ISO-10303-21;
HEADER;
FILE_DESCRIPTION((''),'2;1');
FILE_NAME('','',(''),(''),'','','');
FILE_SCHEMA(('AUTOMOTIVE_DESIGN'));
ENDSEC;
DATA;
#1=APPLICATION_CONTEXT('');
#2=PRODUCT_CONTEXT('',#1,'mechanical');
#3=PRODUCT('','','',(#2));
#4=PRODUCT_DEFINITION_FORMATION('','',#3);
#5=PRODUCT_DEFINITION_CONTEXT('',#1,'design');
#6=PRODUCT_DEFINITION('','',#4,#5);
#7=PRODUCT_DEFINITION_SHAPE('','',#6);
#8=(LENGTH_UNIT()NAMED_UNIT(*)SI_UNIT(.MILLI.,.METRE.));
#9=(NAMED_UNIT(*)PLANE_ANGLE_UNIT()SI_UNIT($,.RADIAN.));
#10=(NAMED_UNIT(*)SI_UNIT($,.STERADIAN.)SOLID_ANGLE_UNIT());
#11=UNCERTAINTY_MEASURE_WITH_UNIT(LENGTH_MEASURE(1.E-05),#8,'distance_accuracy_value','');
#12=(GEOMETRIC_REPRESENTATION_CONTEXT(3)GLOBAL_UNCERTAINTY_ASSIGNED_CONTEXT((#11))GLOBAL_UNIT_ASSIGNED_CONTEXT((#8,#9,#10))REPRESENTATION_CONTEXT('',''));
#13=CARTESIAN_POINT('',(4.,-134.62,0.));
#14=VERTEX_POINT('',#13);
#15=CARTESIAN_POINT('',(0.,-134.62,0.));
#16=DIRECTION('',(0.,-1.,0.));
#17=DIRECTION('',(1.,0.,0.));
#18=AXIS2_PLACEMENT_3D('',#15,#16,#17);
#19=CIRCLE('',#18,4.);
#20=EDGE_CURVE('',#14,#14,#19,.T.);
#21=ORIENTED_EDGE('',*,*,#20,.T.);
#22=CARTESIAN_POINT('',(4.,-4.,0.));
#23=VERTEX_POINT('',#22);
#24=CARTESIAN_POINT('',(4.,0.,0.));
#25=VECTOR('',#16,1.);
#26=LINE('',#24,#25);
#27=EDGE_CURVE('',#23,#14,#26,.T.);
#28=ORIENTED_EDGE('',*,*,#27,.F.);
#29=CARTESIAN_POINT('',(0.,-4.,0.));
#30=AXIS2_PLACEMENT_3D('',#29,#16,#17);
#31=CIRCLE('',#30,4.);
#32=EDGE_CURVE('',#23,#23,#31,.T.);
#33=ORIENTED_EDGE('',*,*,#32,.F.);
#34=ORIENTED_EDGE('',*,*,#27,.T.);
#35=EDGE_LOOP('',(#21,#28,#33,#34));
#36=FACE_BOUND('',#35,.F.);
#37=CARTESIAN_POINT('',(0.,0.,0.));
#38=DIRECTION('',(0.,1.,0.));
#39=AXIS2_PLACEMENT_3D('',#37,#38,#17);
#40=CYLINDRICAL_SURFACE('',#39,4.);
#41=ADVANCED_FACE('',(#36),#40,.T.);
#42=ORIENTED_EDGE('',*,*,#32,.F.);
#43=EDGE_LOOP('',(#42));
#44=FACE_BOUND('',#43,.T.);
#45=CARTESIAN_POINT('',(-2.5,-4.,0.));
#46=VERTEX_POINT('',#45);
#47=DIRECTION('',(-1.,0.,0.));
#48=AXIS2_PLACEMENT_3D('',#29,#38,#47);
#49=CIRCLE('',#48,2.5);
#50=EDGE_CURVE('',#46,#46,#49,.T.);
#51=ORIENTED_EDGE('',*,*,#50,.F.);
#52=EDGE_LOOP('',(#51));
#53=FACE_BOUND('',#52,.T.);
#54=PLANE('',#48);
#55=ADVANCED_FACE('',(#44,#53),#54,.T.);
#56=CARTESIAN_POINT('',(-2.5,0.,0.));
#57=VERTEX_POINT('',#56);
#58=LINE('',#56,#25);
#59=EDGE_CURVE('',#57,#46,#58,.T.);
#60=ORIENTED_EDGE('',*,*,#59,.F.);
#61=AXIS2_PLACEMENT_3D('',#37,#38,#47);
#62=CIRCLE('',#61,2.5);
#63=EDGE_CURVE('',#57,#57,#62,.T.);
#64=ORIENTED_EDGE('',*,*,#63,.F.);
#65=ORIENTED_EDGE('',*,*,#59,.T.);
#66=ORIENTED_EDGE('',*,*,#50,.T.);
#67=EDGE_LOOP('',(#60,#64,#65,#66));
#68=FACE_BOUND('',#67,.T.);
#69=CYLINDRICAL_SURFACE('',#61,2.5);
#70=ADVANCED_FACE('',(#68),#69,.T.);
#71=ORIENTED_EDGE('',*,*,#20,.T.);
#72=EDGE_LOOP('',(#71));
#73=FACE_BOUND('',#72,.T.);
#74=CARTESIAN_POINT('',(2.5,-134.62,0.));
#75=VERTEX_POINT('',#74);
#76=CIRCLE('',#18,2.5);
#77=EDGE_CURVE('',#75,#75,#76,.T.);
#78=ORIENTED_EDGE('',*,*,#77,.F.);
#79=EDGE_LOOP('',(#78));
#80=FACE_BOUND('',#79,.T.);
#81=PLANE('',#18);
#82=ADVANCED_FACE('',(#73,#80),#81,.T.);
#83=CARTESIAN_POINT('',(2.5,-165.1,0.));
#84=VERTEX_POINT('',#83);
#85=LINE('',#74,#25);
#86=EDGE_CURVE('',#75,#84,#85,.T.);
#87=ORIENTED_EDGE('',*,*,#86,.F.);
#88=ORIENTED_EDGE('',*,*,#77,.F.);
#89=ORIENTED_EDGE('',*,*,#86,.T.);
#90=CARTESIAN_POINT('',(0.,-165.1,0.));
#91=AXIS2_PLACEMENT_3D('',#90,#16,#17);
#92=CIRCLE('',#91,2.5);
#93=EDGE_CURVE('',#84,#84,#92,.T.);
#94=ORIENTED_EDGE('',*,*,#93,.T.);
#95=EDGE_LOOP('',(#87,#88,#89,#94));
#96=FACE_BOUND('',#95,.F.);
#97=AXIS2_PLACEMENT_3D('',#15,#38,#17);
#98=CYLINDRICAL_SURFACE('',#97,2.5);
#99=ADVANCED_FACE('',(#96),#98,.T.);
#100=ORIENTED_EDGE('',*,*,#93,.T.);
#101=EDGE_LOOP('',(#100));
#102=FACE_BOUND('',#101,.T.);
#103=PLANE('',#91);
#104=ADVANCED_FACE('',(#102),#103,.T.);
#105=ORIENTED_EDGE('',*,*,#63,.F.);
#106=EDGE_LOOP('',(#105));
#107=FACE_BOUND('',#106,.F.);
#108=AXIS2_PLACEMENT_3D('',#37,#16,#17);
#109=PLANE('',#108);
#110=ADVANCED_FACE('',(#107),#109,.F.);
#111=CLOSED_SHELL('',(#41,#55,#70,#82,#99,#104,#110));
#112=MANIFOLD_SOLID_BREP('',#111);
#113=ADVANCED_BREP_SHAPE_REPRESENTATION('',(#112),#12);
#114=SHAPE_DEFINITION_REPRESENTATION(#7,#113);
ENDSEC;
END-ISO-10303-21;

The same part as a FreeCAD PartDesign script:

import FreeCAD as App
import Part
import Sketcher

V = App.Vector
Q = App.Units.Quantity

doc = App.newDocument("Part")
body = doc.addObject("PartDesign::Body", "Body")

# Sketch on XZ plane
sketch1 = body.newObject("Sketcher::SketchObject", "Sketch")
sketch1.AttachmentSupport = (doc.getObject("XZ_Plane"), [""])
sketch1.MapMode = "FlatFace"
sketch1.addGeometry(Part.Circle(V(0, 0, 0), V(0, 0, 1), 4), False)
sketch1.addConstraint(Sketcher.Constraint("Coincident", 0, 3, -1, 1))
sketch1.addConstraint(Sketcher.Constraint("Diameter", 0, Q("8 mm")))
pad1 = body.newObject("PartDesign::Pad", "Pad")
pad1.Profile = sketch1
pad1.Length = 134.62

# Sketch on XZ plane
sketch2 = body.newObject("Sketcher::SketchObject", "Sketch001")
sketch2.AttachmentSupport = (doc.getObject("XZ_Plane"), [""])
sketch2.MapMode = "FlatFace"
sketch2.addGeometry(Part.Circle(V(0, 0, 0), V(0, 0, 1), 4), False)
sketch2.addGeometry(Part.Circle(V(0, 0, 0), V(0, 0, 1), 2.5), False)
sketch2.addConstraint(Sketcher.Constraint("Coincident", 0, 3, -1, 1))
sketch2.addConstraint(Sketcher.Constraint("Coincident", 1, 3, -1, 1))
sketch2.addConstraint(Sketcher.Constraint("Diameter", 0, Q("8 mm")))
sketch2.addConstraint(Sketcher.Constraint("Diameter", 1, Q("5 mm")))
pocket1 = body.newObject("PartDesign::Pocket", "Pocket")
pocket1.Profile = sketch2
pocket1.Length = 4
pocket1.Reversed = True

# Sketch on XZ plane
sketch3 = body.newObject("Sketcher::SketchObject", "Sketch002")
sketch3.AttachmentSupport = (doc.getObject("XZ_Plane"), [""])
sketch3.MapMode = "FlatFace"
sketch3.AttachmentOffset = App.Placement(V(0, 0, 134.62), App.Rotation())
sketch3.addGeometry(Part.Circle(V(0, 0, 0), V(0, 0, 1), 2.5), False)
sketch3.addConstraint(Sketcher.Constraint("Coincident", 0, 3, -1, 1))
sketch3.addConstraint(Sketcher.Constraint("Diameter", 0, Q("5 mm")))
pad2 = body.newObject("PartDesign::Pad", "Pad001")
pad2.Profile = sketch3
pad2.Length = 30.48

doc.recompute()
